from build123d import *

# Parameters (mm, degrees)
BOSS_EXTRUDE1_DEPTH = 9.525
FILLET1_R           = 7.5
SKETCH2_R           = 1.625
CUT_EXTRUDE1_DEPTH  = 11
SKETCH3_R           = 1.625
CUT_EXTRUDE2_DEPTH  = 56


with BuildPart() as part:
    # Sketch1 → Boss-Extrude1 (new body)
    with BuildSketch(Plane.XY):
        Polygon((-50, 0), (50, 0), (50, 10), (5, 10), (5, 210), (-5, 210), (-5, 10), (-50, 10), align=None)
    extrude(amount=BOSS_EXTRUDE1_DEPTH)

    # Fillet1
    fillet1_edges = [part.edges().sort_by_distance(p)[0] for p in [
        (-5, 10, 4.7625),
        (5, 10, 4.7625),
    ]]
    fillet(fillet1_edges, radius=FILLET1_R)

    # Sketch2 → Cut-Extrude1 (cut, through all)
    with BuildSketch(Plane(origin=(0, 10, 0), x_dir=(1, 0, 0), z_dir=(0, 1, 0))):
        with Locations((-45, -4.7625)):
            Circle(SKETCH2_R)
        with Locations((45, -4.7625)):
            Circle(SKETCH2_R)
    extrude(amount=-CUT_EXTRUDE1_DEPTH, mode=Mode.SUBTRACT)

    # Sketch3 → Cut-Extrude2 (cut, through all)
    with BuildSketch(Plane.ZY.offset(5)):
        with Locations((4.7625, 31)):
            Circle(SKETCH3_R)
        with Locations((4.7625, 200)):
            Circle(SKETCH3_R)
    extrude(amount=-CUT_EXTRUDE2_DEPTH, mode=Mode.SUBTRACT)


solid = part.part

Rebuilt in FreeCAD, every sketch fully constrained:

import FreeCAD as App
import Part
import Sketcher
from FreeCAD import Vector


def edges_at(feature, points):
    """Names of the edges that pass closest to the given points."""
    edges = feature.Shape.Edges
    near = lambda p: min(range(len(edges)), key=lambda i: edges[i].distToShape(Part.Vertex(*p))[0])
    return sorted({f"Edge{near(p) + 1}" for p in points})


def add_polygon(sketch, points):
    """Adds a closed chain of lines whose ends are joined by coincident constraints."""
    first, n = sketch.GeometryCount, len(points)
    for a, b in zip(points, points[1:] + points[:1]):
        sketch.addGeometry(Part.LineSegment(App.Vector(*a, 0), App.Vector(*b, 0)), False)
    for i in range(n):
        sketch.addConstraint(Sketcher.Constraint("Coincident", first + i, 2, first + (i + 1) % n, 1))

doc = App.newDocument("Part")
body = doc.addObject("PartDesign::Body", "Body")

# Sketch on XY plane
sketch1 = body.newObject("Sketcher::SketchObject", "Sketch")
sketch1.AttachmentSupport = (doc.getObject("XY_Plane"), [""])
sketch1.MapMode = "FlatFace"
add_polygon(sketch1, [(-50, 0), (50, 0), (50, 10), (5, 10), (5, 210), (-5, 210), (-5, 10), (-50, 10)])  # lines 0-7
sketch1.addConstraint([
    Sketcher.Constraint("Horizontal", 0),
    Sketcher.Constraint("Vertical", 1),
    Sketcher.Constraint("Horizontal", 2),
    Sketcher.Constraint("Vertical", 3),
    Sketcher.Constraint("Horizontal", 4),
    Sketcher.Constraint("Vertical", 5),
    Sketcher.Constraint("Horizontal", 6),
    Sketcher.Constraint("Vertical", 7),
    Sketcher.Constraint("Symmetric", 0, 2, 7, 2, -1, 1),
    Sketcher.Constraint("Symmetric", 2, 2, 5, 2, -2),
    Sketcher.Constraint("Equal", 4, 1),
    Sketcher.Constraint("DistanceX", 0, 1, 0, 2, 100.0),
    Sketcher.Constraint("DistanceX", 2, 2, 2, 1, 45.0),
    Sketcher.Constraint("DistanceY", 3, 1, 3, 2, 200.0),
])
pad1 = body.newObject("PartDesign::Pad", "Pad")
pad1.Profile = sketch1
pad1.Length = 9.525
doc.recompute()

fillet = body.newObject("PartDesign::Fillet", "Fillet")
fillet.Base = (pad1, edges_at(pad1, [(-5, 10, 4.763), (5, 10, 4.763)]))
fillet.Radius = 7.5

# Sketch on XZ plane
sketch2 = body.newObject("Sketcher::SketchObject", "Sketch001")
sketch2.AttachmentSupport = (doc.getObject("XZ_Plane"), [""])
sketch2.MapMode = "FlatFace"
sketch2.AttachmentOffset = App.Placement(Vector(0, 0, -10), App.Rotation())
sketch2.addGeometry([
    Part.Circle(Vector(-45, 4.8, 0), Vector(0, 0, 1), 1.6),
    Part.Circle(Vector(45, 4.8, 0), Vector(0, 0, 1), 1.6),
], False)
sketch2.addConstraint([
    Sketcher.Constraint("Equal", 0, 1),
    Sketcher.Constraint("Symmetric", 0, 3, 1, 3, -2),
    Sketcher.Constraint("Diameter", 0, 3.25),
    Sketcher.Constraint("DistanceX", 0, 3, -1, 1, 45.0),
    Sketcher.Constraint("DistanceY", -1, 1, 0, 3, 4.7625),
])
pocket1 = body.newObject("PartDesign::Pocket", "Pocket")
pocket1.Profile = sketch2
pocket1.Type = "ThroughAll"
pocket1.Reversed = True

# Sketch on YZ plane
sketch3 = body.newObject("Sketcher::SketchObject", "Sketch002")
sketch3.AttachmentSupport = (doc.getObject("YZ_Plane"), [""])
sketch3.MapMode = "FlatFace"
sketch3.AttachmentOffset = App.Placement(Vector(0, 0, -5), App.Rotation())
sketch3.addGeometry([
    Part.Circle(Vector(31, 4.8, 0), Vector(0, 0, 1), 1.6),
    Part.Circle(Vector(200, 4.8, 0), Vector(0, 0, 1), 1.6),
], False)
sketch3.addConstraint([
    Sketcher.Constraint("Equal", 0, 1),
    Sketcher.Constraint("Horizontal", 0, 3, 1, 3),
    Sketcher.Constraint("Diameter", 0, 3.25),
    Sketcher.Constraint("DistanceX", -1, 1, 0, 3, 31.0),
    Sketcher.Constraint("DistanceX", -1, 1, 1, 3, 200.0),
    Sketcher.Constraint("DistanceY", -1, 1, 0, 3, 4.7625),
])
pocket2 = body.newObject("PartDesign::Pocket", "Pocket001")
pocket2.Profile = sketch3
pocket2.Type = "ThroughAll"
pocket2.Reversed = True

doc.recompute()
